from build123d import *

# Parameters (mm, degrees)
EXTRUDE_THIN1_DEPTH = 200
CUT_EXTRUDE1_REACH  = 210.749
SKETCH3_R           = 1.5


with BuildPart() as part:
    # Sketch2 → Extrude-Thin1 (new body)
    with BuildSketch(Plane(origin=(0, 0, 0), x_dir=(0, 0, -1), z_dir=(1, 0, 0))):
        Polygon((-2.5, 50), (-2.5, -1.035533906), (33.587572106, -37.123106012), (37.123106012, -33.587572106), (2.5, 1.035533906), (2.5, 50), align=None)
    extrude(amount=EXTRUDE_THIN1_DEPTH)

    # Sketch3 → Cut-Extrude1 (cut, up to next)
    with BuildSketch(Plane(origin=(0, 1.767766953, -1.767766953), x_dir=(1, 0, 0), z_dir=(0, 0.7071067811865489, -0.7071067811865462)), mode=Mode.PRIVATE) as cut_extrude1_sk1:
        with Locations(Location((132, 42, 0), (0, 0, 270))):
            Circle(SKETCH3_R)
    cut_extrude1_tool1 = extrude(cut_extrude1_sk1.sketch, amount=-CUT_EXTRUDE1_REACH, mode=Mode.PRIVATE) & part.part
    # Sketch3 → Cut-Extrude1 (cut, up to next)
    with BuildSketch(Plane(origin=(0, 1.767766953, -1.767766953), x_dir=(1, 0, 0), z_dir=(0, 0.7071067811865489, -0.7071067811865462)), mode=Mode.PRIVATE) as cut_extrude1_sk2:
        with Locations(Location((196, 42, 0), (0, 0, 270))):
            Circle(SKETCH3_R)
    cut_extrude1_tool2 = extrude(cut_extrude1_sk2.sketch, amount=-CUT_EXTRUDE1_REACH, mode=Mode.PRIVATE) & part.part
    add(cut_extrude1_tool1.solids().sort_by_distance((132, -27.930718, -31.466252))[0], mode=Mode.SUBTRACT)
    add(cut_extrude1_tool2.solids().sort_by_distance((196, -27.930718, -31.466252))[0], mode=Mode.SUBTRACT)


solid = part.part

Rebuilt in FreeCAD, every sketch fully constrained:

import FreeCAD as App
import Part
import Sketcher

V = App.Vector
Q = App.Units.Quantity


def add_polygon(sketch, points):
    """Adds a closed chain of lines whose ends are joined by coincident constraints."""
    first, n = sketch.GeometryCount, len(points)
    for a, b in zip(points, points[1:] + points[:1]):
        sketch.addGeometry(Part.LineSegment(App.Vector(*a, 0), App.Vector(*b, 0)), False)
    for i in range(n):
        sketch.addConstraint(Sketcher.Constraint("Coincident", first + i, 2, first + (i + 1) % n, 1))

doc = App.newDocument("Part")
params = doc.addObject("Spreadsheet::Sheet", "Params")
for row, (alias, value) in enumerate([
    ("sketch1_height", "5 mm"),
    ("sketch1_length", "5 mm"),
    ("pad1_length", "200 mm"),
    ("sketch2_diameter", "3 mm"),
    ("sketch3_diameter", "3 mm"),
], start=1):
    params.set(f"A{row}", alias)
    params.set(f"B{row}", "=" + value)
    params.setAlias(f"B{row}", alias)

body = doc.addObject("PartDesign::Body", "Body")

# Sketch on YZ plane
sketch1 = body.newObject("Sketcher::SketchObject", "Sketch")
sketch1.AttachmentSupport = (doc.getObject("YZ_Plane"), [""])
sketch1.MapMode = "FlatFace"
add_polygon(sketch1, [(50, 2), (-1, 2), (-37, -34), (-34, -37), (1, -2), (50, -2)])  # lines 0-5
sketch1.addConstraint([
    Sketcher.Constraint("Horizontal", 0),
    Sketcher.Constraint("Horizontal", 4),
    Sketcher.Constraint("Vertical", 5),
    Sketcher.Constraint("Symmetric", 0, 2, 3, 2, -1, 1),
    Sketcher.Constraint("Perpendicular", 1, 2),
    Sketcher.Constraint("Perpendicular", 2, 3),
    Sketcher.Constraint("DistanceY", 5, 1, 5, 2, Q("5 mm")),
    Sketcher.Constraint("Angle", 1, Q("-135 deg")),
    Sketcher.Constraint("Distance", 2, Q("5 mm")),
    Sketcher.Constraint("DistanceX", -1, 1, 4, 2, Q("50 mm")),
    Sketcher.Constraint("DistanceX", 2, 2, 0, 2, Q("32.552038 mm")),
])
sketch1.setExpression("Constraints[12]", "Params.sketch1_height")
sketch1.setExpression("Constraints[14]", "Params.sketch1_length")
pad1 = body.newObject("PartDesign::Pad", "Pad")
pad1.Profile = sketch1
pad1.setExpression("Length", "Params.pad1_length")

# Sketch on an angled plane
sketch2 = body.newObject("Sketcher::SketchObject", "Sketch001")
sketch2.Placement = App.Placement(V(0, 1.767767, -1.767767), App.Rotation(V(1, 0, 0), V(0, -0.707106781, -0.707106781), V(0, 0.707106781, -0.707106781), "ZXY"))
sketch2.addGeometry(Part.Circle(V(132, 42, 0), V(0, 0, 1), 1.5), False)
sketch2.addConstraint([
    Sketcher.Constraint("Diameter", 0, Q("3 mm")),
    Sketcher.Constraint("DistanceX", -1, 1, 0, 3, Q("132 mm")),
    Sketcher.Constraint("DistanceY", -1, 1, 0, 3, Q("42 mm")),
])
sketch2.setExpression("Constraints[0]", "Params.sketch2_diameter")
pocket1 = body.newObject("PartDesign::Pocket", "Pocket")
pocket1.Profile = sketch2
pocket1.Type = "UpToFirst"

# Sketch on an angled plane
sketch3 = body.newObject("Sketcher::SketchObject", "Sketch002")
sketch3.Placement = App.Placement(V(0, 1.767767, -1.767767), App.Rotation(V(1, 0, 0), V(0, -0.707106781, -0.707106781), V(0, 0.707106781, -0.707106781), "ZXY"))
sketch3.addGeometry(Part.Circle(V(196, 42, 0), V(0, 0, 1), 1.5), False)
sketch3.addConstraint([
    Sketcher.Constraint("Diameter", 0, Q("3 mm")),
    Sketcher.Constraint("DistanceX", -1, 1, 0, 3, Q("196 mm")),
    Sketcher.Constraint("DistanceY", -1, 1, 0, 3, Q("42 mm")),
])
sketch3.setExpression("Constraints[0]", "Params.sketch3_diameter")
pocket2 = body.newObject("PartDesign::Pocket", "Pocket001")
pocket2.Profile = sketch3
pocket2.Type = "UpToFirst"

doc.recompute()
